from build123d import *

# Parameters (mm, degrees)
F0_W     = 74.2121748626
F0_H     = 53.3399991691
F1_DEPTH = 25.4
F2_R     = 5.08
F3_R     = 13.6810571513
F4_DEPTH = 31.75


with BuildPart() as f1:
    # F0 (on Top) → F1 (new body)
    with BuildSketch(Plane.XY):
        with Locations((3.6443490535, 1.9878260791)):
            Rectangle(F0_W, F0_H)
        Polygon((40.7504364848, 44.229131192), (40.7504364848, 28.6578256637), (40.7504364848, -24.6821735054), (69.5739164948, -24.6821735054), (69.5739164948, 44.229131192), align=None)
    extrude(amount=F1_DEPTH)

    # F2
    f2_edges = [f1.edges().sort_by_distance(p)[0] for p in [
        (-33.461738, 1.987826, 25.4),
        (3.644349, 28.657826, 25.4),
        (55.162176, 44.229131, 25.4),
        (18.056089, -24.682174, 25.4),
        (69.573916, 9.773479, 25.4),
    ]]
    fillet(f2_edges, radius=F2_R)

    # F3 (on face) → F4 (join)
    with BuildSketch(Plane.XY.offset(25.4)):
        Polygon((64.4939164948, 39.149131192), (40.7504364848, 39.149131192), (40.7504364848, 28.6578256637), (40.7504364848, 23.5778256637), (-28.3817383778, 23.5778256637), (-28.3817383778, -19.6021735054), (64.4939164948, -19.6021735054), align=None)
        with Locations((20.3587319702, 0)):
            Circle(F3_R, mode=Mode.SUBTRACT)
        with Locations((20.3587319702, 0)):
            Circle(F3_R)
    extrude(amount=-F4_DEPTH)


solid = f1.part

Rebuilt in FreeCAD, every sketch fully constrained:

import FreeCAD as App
import Part
import Sketcher

V = App.Vector
Q = App.Units.Quantity


def edges_at(feature, points):
    """Names of the edges that pass closest to the given points."""
    edges = feature.Shape.Edges
    near = lambda p: min(range(len(edges)), key=lambda i: edges[i].distToShape(Part.Vertex(*p))[0])
    return sorted({f"Edge{near(p) + 1}" for p in points})

doc = App.newDocument("Part")
params = doc.addObject("Spreadsheet::Sheet", "Params")
for row, (alias, value) in enumerate([
    ("sketch1_height", "2.1 in"),
    ("pad1_length", "1 in"),
    ("fillet_radius", "0.2 in"),
    ("sketch2_height", "1.7 in"),
    ("pad2_length", "1.25 in"),
], start=1):
    params.set(f"A{row}", alias)
    params.set(f"B{row}", "=" + value)
    params.setAlias(f"B{row}", alias)

body = doc.addObject("PartDesign::Body", "Body")

# Sketch on XY plane
sketch1 = doc.addObject("Sketcher::SketchObject", "Sketch")
body.addObject(sketch1)
sketch1.AttachmentSupport = (doc.XY_Plane, [""])
sketch1.MapMode = "FlatFace"
sketch1.addGeometry([
    Part.LineSegment(V(-33, 29, 0), V(-33, -25, 0)),  # 0
    Part.LineSegment(V(-33, -25, 0), V(70, -25, 0)),  # 1
    Part.LineSegment(V(70, -25, 0), V(70, 44, 0)),  # 2
    Part.LineSegment(V(70, 44, 0), V(41, 44, 0)),  # 3
    Part.LineSegment(V(41, 44, 0), V(41, 29, 0)),  # 4
    Part.LineSegment(V(41, 29, 0), V(-33, 29, 0)),  # 5
], False)
sketch1.addConstraint([
    Sketcher.Constraint("Coincident", 0, 2, 1, 1),
    Sketcher.Constraint("Coincident", 1, 2, 2, 1),
    Sketcher.Constraint("Coincident", 2, 2, 3, 1),
    Sketcher.Constraint("Coincident", 3, 2, 4, 1),
    Sketcher.Constraint("Coincident", 4, 2, 5, 1),
    Sketcher.Constraint("Coincident", 5, 2, 0, 1),
    Sketcher.Constraint("Vertical", 0),
    Sketcher.Constraint("Horizontal", 1),
    Sketcher.Constraint("Vertical", 2),
    Sketcher.Constraint("Horizontal", 3),
    Sketcher.Constraint("Vertical", 4),
    Sketcher.Constraint("Horizontal", 5),
    Sketcher.Constraint("DistanceY", 0, 2, 0, 1, Q("2.1 in")),
    Sketcher.Constraint("DistanceX", 3, 2, 3, 1, Q("28.82348 mm")),
    Sketcher.Constraint("DistanceX", 1, 1, 1, 2, Q("103.035655 mm")),
    Sketcher.Constraint("DistanceY", 2, 1, 2, 2, Q("68.911305 mm")),
    Sketcher.Constraint("DistanceX", 0, 2, -1, 1, Q("33.461738 mm")),
    Sketcher.Constraint("DistanceY", -1, 1, 2, 2, Q("44.229131 mm")),
])
sketch1.setExpression("Constraints[12]", "Params.sketch1_height")
pad1 = doc.addObject("PartDesign::Pad", "Pad")
body.addObject(pad1)
pad1.Profile = sketch1
pad1.setExpression("Length", "Params.pad1_length")
doc.recompute()

fillet = doc.addObject("PartDesign::Fillet", "Fillet")
body.addObject(fillet)
fillet.Base = (pad1, edges_at(pad1, [
    (-33.462, 1.988, 25.4),
    (3.644, 28.658, 25.4),
    (55.162, 44.229, 25.4),
    (18.056, -24.682, 25.4),
    (69.574, 9.773, 25.4),
]))
fillet.setExpression("Radius", "Params.fillet_radius")

# Sketch on XY plane
sketch2 = doc.addObject("Sketcher::SketchObject", "Sketch001")
body.addObject(sketch2)
sketch2.AttachmentSupport = (doc.XY_Plane, [""])
sketch2.MapMode = "FlatFace"
sketch2.AttachmentOffset = App.Placement(V(0, 0, 1 * 25.4), App.Rotation())
sketch2.addGeometry([
    Part.LineSegment(V(64, 39, 0), V(41, 39, 0)),  # 0
    Part.LineSegment(V(41, 39, 0), V(41, 24, 0)),  # 1
    Part.LineSegment(V(41, 24, 0), V(-28, 24, 0)),  # 2
    Part.LineSegment(V(-28, 24, 0), V(-28, -20, 0)),  # 3
    Part.LineSegment(V(-28, -20, 0), V(64, -20, 0)),  # 4
    Part.LineSegment(V(64, -20, 0), V(64, 39, 0)),  # 5
], False)
sketch2.addConstraint([
    Sketcher.Constraint("Coincident", 0, 2, 1, 1),
    Sketcher.Constraint("Coincident", 1, 2, 2, 1),
    Sketcher.Constraint("Coincident", 2, 2, 3, 1),
    Sketcher.Constraint("Coincident", 3, 2, 4, 1),
    Sketcher.Constraint("Coincident", 4, 2, 5, 1),
    Sketcher.Constraint("Coincident", 5, 2, 0, 1),
    Sketcher.Constraint("Horizontal", 0),
    Sketcher.Constraint("Vertical", 1),
    Sketcher.Constraint("Horizontal", 2),
    Sketcher.Constraint("Vertical", 3),
    Sketcher.Constraint("Horizontal", 4),
    Sketcher.Constraint("Vertical", 5),
    Sketcher.Constraint("DistanceY", 3, 2, 3, 1, Q("1.7 in")),
    Sketcher.Constraint("DistanceX", 0, 2, 0, 1, Q("23.74348 mm")),
    Sketcher.Constraint("DistanceX", 2, 2, 2, 1, Q("69.132175 mm")),
    Sketcher.Constraint("DistanceY", 1, 2, 1, 1, Q("15.571306 mm")),
    Sketcher.Constraint("DistanceY", -1, 1, 0, 2, Q("39.149131 mm")),
    Sketcher.Constraint("DistanceX", 2, 2, -1, 1, Q("28.381738 mm")),
])
sketch2.setExpression("Constraints[12]", "Params.sketch2_height")
pad2 = doc.addObject("PartDesign::Pad", "Pad001")
body.addObject(pad2)
pad2.Profile = sketch2
pad2.setExpression("Length", "Params.pad2_length")
pad2.Reversed = True

doc.recompute()
